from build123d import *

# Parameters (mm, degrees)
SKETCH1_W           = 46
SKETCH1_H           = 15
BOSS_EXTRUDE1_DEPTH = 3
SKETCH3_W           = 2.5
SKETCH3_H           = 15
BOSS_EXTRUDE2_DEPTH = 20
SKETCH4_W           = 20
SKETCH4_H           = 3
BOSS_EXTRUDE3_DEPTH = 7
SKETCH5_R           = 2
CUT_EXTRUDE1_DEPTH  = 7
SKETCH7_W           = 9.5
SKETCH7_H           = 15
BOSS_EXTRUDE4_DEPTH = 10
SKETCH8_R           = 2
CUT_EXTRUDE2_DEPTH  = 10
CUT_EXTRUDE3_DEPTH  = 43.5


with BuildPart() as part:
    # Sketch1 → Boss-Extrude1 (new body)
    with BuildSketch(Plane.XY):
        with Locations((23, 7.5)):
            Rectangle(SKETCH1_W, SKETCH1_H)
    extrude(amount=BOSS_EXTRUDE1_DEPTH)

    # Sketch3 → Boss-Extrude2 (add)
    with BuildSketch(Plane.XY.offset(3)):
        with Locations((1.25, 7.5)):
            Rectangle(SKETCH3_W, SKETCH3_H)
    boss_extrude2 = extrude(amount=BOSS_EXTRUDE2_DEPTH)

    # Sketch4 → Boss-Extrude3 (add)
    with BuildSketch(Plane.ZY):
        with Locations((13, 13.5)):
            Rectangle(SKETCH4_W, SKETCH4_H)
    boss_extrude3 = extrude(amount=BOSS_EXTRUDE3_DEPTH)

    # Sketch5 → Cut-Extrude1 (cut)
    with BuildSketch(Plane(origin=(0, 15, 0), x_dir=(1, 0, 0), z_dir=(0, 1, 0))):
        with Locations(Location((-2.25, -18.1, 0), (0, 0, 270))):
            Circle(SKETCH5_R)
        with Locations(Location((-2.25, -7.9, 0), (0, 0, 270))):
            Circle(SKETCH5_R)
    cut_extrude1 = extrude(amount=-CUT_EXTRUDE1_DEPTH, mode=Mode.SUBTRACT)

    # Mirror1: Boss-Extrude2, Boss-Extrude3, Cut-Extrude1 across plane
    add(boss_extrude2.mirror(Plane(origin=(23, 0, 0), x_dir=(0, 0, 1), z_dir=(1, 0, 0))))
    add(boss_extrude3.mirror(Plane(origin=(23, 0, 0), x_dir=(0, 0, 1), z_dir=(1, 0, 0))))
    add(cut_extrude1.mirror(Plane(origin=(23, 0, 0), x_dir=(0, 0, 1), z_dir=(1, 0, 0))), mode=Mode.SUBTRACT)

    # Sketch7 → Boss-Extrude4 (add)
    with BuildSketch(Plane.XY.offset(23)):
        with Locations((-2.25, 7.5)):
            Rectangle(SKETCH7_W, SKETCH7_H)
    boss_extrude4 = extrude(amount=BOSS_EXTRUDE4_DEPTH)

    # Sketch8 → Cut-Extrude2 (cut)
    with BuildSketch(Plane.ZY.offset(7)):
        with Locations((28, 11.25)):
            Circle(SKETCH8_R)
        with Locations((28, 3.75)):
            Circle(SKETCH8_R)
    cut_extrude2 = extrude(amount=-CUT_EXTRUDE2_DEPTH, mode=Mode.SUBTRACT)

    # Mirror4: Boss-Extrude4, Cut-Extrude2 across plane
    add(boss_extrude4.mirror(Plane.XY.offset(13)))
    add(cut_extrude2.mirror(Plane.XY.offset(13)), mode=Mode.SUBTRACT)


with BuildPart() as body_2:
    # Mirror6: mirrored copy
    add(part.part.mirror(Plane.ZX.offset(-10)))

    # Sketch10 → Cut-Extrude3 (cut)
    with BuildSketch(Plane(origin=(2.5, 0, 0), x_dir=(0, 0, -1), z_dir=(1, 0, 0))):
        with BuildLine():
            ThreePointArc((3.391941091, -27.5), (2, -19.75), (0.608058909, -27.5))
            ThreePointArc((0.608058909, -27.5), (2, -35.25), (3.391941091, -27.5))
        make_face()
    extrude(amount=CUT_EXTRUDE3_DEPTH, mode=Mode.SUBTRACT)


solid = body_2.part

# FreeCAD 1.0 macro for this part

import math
import FreeCAD as App
import Part
import Sketcher

doc = App.newDocument("Part")
body = doc.addObject("PartDesign::Body", "Body")

sketch1 = body.newObject("Sketcher::SketchObject", "Sketch")
sketch1.AttachmentSupport = (doc.getObject("XY_Plane"), [""])
sketch1.MapMode = "FlatFace"
sketch1.addGeometry([
    Part.LineSegment(App.Vector(0, 15, 0), App.Vector(0, 0, 0)),
    Part.LineSegment(App.Vector(0, 0, 0), App.Vector(46, 0, 0)),
    Part.LineSegment(App.Vector(46, 0, 0), App.Vector(46, 15, 0)),
    Part.LineSegment(App.Vector(46, 15, 0), App.Vector(0, 15, 0)),
], False)
sketch1.addConstraint([
    Sketcher.Constraint("Coincident", 0, 2, 1, 1),
    Sketcher.Constraint("Coincident", 1, 2, 2, 1),
    Sketcher.Constraint("Coincident", 2, 2, 3, 1),
    Sketcher.Constraint("Coincident", 3, 2, 0, 1),
    Sketcher.Constraint("Vertical", 0),
    Sketcher.Constraint("Horizontal", 1),
    Sketcher.Constraint("Vertical", 2),
    Sketcher.Constraint("Horizontal", 3),
    Sketcher.Constraint("Coincident", 0, 2, -1, 1),
    Sketcher.Constraint("DistanceX", 1, 1, 1, 2, 46.0),
    Sketcher.Constraint("DistanceY", 0, 2, 0, 1, 15.0),
])
pad1 = body.newObject("PartDesign::Pad", "Pad")
pad1.Profile = sketch1
pad1.Length = 3

sketch2 = body.newObject("Sketcher::SketchObject", "Sketch001")
sketch2.AttachmentSupport = (doc.getObject("XY_Plane"), [""])
sketch2.MapMode = "FlatFace"
sketch2.AttachmentOffset = App.Placement(App.Vector(0, 0, 3), App.Rotation())
sketch2.addGeometry([
    Part.LineSegment(App.Vector(0, 15, 0), App.Vector(0, 0, 0)),
    Part.LineSegment(App.Vector(0, 0, 0), App.Vector(2.5, 0, 0)),
    Part.LineSegment(App.Vector(2.5, 0, 0), App.Vector(2.5, 15, 0)),
    Part.LineSegment(App.Vector(2.5, 15, 0), App.Vector(0, 15, 0)),
], False)
sketch2.addConstraint([
    Sketcher.Constraint("Coincident", 0, 2, 1, 1),
    Sketcher.Constraint("Coincident", 1, 2, 2, 1),
    Sketcher.Constraint("Coincident", 2, 2, 3, 1),
    Sketcher.Constraint("Coincident", 3, 2, 0, 1),
    Sketcher.Constraint("Vertical", 0),
    Sketcher.Constraint("Horizontal", 1),
    Sketcher.Constraint("Vertical", 2),
    Sketcher.Constraint("Horizontal", 3),
    Sketcher.Constraint("Coincident", 0, 2, -1, 1),
    Sketcher.Constraint("DistanceY", 0, 2, 0, 1, 15.0),
    Sketcher.Constraint("DistanceX", 1, 1, 1, 2, 2.5),
])
pad2 = body.newObject("PartDesign::Pad", "Pad001")
pad2.Profile = sketch2
pad2.Length = 20

sketch3 = body.newObject("Sketcher::SketchObject", "Sketch002")
sketch3.AttachmentSupport = (doc.getObject("YZ_Plane"), [""])
sketch3.MapMode = "FlatFace"
sketch3.addGeometry([
    Part.LineSegment(App.Vector(15, 3, 0), App.Vector(12, 3, 0)),
    Part.LineSegment(App.Vector(12, 3, 0), App.Vector(12, 23, 0)),
    Part.LineSegment(App.Vector(12, 23, 0), App.Vector(15, 23, 0)),
    Part.LineSegment(App.Vector(15, 23, 0), App.Vector(15, 3, 0)),
], False)
sketch3.addConstraint([
    Sketcher.Constraint("Coincident", 0, 2, 1, 1),
    Sketcher.Constraint("Coincident", 1, 2, 2, 1),
    Sketcher.Constraint("Coincident", 2, 2, 3, 1),
    Sketcher.Constraint("Coincident", 3, 2, 0, 1),
    Sketcher.Constraint("Horizontal", 0),
    Sketcher.Constraint("Vertical", 1),
    Sketcher.Constraint("Horizontal", 2),
    Sketcher.Constraint("Vertical", 3),
    Sketcher.Constraint("DistanceX", 0, 2, 0, 1, 3.0),
    Sketcher.Constraint("DistanceY", 1, 1, 1, 2, 20.0),
    Sketcher.Constraint("DistanceX", -1, 1, 0, 2, 12.0),
    Sketcher.Constraint("DistanceY", -1, 1, 0, 2, 3.0),
])
pad3 = body.newObject("PartDesign::Pad", "Pad002")
pad3.Profile = sketch3
pad3.Length = 7
pad3.Reversed = True

sketch4 = body.newObject("Sketcher::SketchObject", "Sketch003")
sketch4.AttachmentSupport = (doc.getObject("XZ_Plane"), [""])
sketch4.MapMode = "FlatFace"
sketch4.AttachmentOffset = App.Placement(App.Vector(0, 0, -15), App.Rotation())
sketch4.addGeometry([
    Part.Circle(App.Vector(-2.2, 18.1, 0), App.Vector(0, 0, 1), 2),
    Part.Circle(App.Vector(-2.2, 7.9, 0), App.Vector(0, 0, 1), 2),
], False)
sketch4.addConstraint([
    Sketcher.Constraint("Equal", 0, 1),
    Sketcher.Constraint("Vertical", 0, 3, 1, 3),
    Sketcher.Constraint("Diameter", 0, 4.0),
    Sketcher.Constraint("DistanceY", -1, 1, 0, 3, 18.1),
    Sketcher.Constraint("DistanceY", -1, 1, 1, 3, 7.9),
    Sketcher.Constraint("DistanceX", 0, 3, -1, 1, 2.25),
])
pocket1 = body.newObject("PartDesign::Pocket", "Pocket")
pocket1.Profile = sketch4
pocket1.Length = 7
pocket1.Reversed = True
doc.recompute()

datumplane = body.newObject("PartDesign::Plane", "DatumPlane")
datumplane.AttachmentSupport = (doc.getObject("YZ_Plane"), [""])
datumplane.MapMode = "FlatFace"
datumplane.AttachmentOffset = App.Placement(App.Vector(0, 0, 23), App.Rotation())
mirrored = body.newObject("PartDesign::Mirrored", "Mirrored")
mirrored.Originals = [pad2, pad3, pocket1]
mirrored.MirrorPlane = (datumplane, [""])
body.Tip = mirrored

sketch5 = body.newObject("Sketcher::SketchObject", "Sketch004")
sketch5.AttachmentSupport = (doc.getObject("XY_Plane"), [""])
sketch5.MapMode = "FlatFace"
sketch5.AttachmentOffset = App.Placement(App.Vector(0, 0, 23), App.Rotation())
sketch5.addGeometry([
    Part.LineSegment(App.Vector(-7, 15, 0), App.Vector(-7, 0, 0)),
    Part.LineSegment(App.Vector(-7, 0, 0), App.Vector(2, 0, 0)),
    Part.LineSegment(App.Vector(2, 0, 0), App.Vector(2, 15, 0)),
    Part.LineSegment(App.Vector(2, 15, 0), App.Vector(-7, 15, 0)),
], False)
sketch5.addConstraint([
    Sketcher.Constraint("Coincident", 0, 2, 1, 1),
    Sketcher.Constraint("Coincident", 1, 2, 2, 1),
    Sketcher.Constraint("Coincident", 2, 2, 3, 1),
    Sketcher.Constraint("Coincident", 3, 2, 0, 1),
    Sketcher.Constraint("Vertical", 0),
    Sketcher.Constraint("Horizontal", 1),
    Sketcher.Constraint("Vertical", 2),
    Sketcher.Constraint("Horizontal", 3),
    Sketcher.Constraint("PointOnObject", 0, 2, -1),
    Sketcher.Constraint("DistanceY", 0, 2, 0, 1, 15.0),
    Sketcher.Constraint("DistanceX", 1, 1, 1, 2, 9.5),
    Sketcher.Constraint("DistanceX", 0, 2, -1, 1, 7.0),
])
pad4 = body.newObject("PartDesign::Pad", "Pad003")
pad4.Profile = sketch5
pad4.Length = 10

sketch6 = body.newObject("Sketcher::SketchObject", "Sketch005")
sketch6.AttachmentSupport = (doc.getObject("YZ_Plane"), [""])
sketch6.MapMode = "FlatFace"
sketch6.AttachmentOffset = App.Placement(App.Vector(0, 0, -7), App.Rotation())
sketch6.addGeometry([
    Part.Circle(App.Vector(11.2, 28, 0), App.Vector(0, 0, 1), 2),
    Part.Circle(App.Vector(3.8, 28, 0), App.Vector(0, 0, 1), 2),
], False)
sketch6.addConstraint([
    Sketcher.Constraint("Equal", 0, 1),
    Sketcher.Constraint("Horizontal", 0, 3, 1, 3),
    Sketcher.Constraint("Diameter", 0, 4.0),
    Sketcher.Constraint("DistanceY", -1, 1, 0, 3, 28.0),
    Sketcher.Constraint("DistanceX", 1, 3, 0, 3, 7.5),
    Sketcher.Constraint("DistanceX", -1, 1, 0, 3, 11.25),
])
pocket2 = body.newObject("PartDesign::Pocket", "Pocket001")
pocket2.Profile = sketch6
pocket2.Length = 10
pocket2.Reversed = True
doc.recompute()

datumplane2 = body.newObject("PartDesign::Plane", "DatumPlane001")
datumplane2.AttachmentSupport = (doc.getObject("XY_Plane"), [""])
datumplane2.MapMode = "FlatFace"
datumplane2.AttachmentOffset = App.Placement(App.Vector(0, 0, 13), App.Rotation())
mirrored2 = body.newObject("PartDesign::Mirrored", "Mirrored001")
mirrored2.Originals = [pad4, pocket2]
mirrored2.MirrorPlane = (datumplane2, [""])
body.Tip = mirrored2
body2 = doc.addObject("PartDesign::Body", "Body001")
doc.recompute()

mirroring = doc.addObject("Part::Mirroring", "Mirroring")
mirroring.Source = body
mirroring.Base = App.Vector(0, -10, 0)
mirroring.Normal = App.Vector(0, 1, 0)
body2.BaseFeature = mirroring
doc.recompute()

sketch7 = body2.newObject("Sketcher::SketchObject", "Sketch006")
sketch7.AttachmentSupport = (doc.getObject("YZ_Plane001"), [""])
sketch7.MapMode = "FlatFace"
sketch7.AttachmentOffset = App.Placement(App.Vector(0, 0, 2.5), App.Rotation())
sketch7.addGeometry([
    Part.ArcOfCircle(Part.Circle(App.Vector(-23.8, -2, 0), App.Vector(0, 0, 1), 4), math.radians(-160), math.radians(160)),
    Part.ArcOfCircle(Part.Circle(App.Vector(-31.2, -2, 0), App.Vector(0, 0, 1), 4), math.radians(20), math.radians(340)),
], False)
sketch7.addConstraint([
    Sketcher.Constraint("Coincident", 0, 1, 1, 2),
    Sketcher.Constraint("Coincident", 1, 1, 0, 2),
    Sketcher.Constraint("Equal", 0, 1),
    Sketcher.Constraint("Horizontal", 0, 3, 1, 3),
    Sketcher.Constraint("Radius", 0, 4.0),
    Sketcher.Constraint("DistanceY", 0, 3, -1, 1, 2.0),
    Sketcher.Constraint("DistanceX", 0, 1, -1, 1, 27.5),
    Sketcher.Constraint("DistanceX", 1, 3, 0, 3, 7.5),
])
pocket3 = body2.newObject("PartDesign::Pocket", "Pocket002")
pocket3.Profile = sketch7
pocket3.Length = 43.5
pocket3.Reversed = True
body.Visibility = False
mirroring.Visibility = False

doc.recompute()
